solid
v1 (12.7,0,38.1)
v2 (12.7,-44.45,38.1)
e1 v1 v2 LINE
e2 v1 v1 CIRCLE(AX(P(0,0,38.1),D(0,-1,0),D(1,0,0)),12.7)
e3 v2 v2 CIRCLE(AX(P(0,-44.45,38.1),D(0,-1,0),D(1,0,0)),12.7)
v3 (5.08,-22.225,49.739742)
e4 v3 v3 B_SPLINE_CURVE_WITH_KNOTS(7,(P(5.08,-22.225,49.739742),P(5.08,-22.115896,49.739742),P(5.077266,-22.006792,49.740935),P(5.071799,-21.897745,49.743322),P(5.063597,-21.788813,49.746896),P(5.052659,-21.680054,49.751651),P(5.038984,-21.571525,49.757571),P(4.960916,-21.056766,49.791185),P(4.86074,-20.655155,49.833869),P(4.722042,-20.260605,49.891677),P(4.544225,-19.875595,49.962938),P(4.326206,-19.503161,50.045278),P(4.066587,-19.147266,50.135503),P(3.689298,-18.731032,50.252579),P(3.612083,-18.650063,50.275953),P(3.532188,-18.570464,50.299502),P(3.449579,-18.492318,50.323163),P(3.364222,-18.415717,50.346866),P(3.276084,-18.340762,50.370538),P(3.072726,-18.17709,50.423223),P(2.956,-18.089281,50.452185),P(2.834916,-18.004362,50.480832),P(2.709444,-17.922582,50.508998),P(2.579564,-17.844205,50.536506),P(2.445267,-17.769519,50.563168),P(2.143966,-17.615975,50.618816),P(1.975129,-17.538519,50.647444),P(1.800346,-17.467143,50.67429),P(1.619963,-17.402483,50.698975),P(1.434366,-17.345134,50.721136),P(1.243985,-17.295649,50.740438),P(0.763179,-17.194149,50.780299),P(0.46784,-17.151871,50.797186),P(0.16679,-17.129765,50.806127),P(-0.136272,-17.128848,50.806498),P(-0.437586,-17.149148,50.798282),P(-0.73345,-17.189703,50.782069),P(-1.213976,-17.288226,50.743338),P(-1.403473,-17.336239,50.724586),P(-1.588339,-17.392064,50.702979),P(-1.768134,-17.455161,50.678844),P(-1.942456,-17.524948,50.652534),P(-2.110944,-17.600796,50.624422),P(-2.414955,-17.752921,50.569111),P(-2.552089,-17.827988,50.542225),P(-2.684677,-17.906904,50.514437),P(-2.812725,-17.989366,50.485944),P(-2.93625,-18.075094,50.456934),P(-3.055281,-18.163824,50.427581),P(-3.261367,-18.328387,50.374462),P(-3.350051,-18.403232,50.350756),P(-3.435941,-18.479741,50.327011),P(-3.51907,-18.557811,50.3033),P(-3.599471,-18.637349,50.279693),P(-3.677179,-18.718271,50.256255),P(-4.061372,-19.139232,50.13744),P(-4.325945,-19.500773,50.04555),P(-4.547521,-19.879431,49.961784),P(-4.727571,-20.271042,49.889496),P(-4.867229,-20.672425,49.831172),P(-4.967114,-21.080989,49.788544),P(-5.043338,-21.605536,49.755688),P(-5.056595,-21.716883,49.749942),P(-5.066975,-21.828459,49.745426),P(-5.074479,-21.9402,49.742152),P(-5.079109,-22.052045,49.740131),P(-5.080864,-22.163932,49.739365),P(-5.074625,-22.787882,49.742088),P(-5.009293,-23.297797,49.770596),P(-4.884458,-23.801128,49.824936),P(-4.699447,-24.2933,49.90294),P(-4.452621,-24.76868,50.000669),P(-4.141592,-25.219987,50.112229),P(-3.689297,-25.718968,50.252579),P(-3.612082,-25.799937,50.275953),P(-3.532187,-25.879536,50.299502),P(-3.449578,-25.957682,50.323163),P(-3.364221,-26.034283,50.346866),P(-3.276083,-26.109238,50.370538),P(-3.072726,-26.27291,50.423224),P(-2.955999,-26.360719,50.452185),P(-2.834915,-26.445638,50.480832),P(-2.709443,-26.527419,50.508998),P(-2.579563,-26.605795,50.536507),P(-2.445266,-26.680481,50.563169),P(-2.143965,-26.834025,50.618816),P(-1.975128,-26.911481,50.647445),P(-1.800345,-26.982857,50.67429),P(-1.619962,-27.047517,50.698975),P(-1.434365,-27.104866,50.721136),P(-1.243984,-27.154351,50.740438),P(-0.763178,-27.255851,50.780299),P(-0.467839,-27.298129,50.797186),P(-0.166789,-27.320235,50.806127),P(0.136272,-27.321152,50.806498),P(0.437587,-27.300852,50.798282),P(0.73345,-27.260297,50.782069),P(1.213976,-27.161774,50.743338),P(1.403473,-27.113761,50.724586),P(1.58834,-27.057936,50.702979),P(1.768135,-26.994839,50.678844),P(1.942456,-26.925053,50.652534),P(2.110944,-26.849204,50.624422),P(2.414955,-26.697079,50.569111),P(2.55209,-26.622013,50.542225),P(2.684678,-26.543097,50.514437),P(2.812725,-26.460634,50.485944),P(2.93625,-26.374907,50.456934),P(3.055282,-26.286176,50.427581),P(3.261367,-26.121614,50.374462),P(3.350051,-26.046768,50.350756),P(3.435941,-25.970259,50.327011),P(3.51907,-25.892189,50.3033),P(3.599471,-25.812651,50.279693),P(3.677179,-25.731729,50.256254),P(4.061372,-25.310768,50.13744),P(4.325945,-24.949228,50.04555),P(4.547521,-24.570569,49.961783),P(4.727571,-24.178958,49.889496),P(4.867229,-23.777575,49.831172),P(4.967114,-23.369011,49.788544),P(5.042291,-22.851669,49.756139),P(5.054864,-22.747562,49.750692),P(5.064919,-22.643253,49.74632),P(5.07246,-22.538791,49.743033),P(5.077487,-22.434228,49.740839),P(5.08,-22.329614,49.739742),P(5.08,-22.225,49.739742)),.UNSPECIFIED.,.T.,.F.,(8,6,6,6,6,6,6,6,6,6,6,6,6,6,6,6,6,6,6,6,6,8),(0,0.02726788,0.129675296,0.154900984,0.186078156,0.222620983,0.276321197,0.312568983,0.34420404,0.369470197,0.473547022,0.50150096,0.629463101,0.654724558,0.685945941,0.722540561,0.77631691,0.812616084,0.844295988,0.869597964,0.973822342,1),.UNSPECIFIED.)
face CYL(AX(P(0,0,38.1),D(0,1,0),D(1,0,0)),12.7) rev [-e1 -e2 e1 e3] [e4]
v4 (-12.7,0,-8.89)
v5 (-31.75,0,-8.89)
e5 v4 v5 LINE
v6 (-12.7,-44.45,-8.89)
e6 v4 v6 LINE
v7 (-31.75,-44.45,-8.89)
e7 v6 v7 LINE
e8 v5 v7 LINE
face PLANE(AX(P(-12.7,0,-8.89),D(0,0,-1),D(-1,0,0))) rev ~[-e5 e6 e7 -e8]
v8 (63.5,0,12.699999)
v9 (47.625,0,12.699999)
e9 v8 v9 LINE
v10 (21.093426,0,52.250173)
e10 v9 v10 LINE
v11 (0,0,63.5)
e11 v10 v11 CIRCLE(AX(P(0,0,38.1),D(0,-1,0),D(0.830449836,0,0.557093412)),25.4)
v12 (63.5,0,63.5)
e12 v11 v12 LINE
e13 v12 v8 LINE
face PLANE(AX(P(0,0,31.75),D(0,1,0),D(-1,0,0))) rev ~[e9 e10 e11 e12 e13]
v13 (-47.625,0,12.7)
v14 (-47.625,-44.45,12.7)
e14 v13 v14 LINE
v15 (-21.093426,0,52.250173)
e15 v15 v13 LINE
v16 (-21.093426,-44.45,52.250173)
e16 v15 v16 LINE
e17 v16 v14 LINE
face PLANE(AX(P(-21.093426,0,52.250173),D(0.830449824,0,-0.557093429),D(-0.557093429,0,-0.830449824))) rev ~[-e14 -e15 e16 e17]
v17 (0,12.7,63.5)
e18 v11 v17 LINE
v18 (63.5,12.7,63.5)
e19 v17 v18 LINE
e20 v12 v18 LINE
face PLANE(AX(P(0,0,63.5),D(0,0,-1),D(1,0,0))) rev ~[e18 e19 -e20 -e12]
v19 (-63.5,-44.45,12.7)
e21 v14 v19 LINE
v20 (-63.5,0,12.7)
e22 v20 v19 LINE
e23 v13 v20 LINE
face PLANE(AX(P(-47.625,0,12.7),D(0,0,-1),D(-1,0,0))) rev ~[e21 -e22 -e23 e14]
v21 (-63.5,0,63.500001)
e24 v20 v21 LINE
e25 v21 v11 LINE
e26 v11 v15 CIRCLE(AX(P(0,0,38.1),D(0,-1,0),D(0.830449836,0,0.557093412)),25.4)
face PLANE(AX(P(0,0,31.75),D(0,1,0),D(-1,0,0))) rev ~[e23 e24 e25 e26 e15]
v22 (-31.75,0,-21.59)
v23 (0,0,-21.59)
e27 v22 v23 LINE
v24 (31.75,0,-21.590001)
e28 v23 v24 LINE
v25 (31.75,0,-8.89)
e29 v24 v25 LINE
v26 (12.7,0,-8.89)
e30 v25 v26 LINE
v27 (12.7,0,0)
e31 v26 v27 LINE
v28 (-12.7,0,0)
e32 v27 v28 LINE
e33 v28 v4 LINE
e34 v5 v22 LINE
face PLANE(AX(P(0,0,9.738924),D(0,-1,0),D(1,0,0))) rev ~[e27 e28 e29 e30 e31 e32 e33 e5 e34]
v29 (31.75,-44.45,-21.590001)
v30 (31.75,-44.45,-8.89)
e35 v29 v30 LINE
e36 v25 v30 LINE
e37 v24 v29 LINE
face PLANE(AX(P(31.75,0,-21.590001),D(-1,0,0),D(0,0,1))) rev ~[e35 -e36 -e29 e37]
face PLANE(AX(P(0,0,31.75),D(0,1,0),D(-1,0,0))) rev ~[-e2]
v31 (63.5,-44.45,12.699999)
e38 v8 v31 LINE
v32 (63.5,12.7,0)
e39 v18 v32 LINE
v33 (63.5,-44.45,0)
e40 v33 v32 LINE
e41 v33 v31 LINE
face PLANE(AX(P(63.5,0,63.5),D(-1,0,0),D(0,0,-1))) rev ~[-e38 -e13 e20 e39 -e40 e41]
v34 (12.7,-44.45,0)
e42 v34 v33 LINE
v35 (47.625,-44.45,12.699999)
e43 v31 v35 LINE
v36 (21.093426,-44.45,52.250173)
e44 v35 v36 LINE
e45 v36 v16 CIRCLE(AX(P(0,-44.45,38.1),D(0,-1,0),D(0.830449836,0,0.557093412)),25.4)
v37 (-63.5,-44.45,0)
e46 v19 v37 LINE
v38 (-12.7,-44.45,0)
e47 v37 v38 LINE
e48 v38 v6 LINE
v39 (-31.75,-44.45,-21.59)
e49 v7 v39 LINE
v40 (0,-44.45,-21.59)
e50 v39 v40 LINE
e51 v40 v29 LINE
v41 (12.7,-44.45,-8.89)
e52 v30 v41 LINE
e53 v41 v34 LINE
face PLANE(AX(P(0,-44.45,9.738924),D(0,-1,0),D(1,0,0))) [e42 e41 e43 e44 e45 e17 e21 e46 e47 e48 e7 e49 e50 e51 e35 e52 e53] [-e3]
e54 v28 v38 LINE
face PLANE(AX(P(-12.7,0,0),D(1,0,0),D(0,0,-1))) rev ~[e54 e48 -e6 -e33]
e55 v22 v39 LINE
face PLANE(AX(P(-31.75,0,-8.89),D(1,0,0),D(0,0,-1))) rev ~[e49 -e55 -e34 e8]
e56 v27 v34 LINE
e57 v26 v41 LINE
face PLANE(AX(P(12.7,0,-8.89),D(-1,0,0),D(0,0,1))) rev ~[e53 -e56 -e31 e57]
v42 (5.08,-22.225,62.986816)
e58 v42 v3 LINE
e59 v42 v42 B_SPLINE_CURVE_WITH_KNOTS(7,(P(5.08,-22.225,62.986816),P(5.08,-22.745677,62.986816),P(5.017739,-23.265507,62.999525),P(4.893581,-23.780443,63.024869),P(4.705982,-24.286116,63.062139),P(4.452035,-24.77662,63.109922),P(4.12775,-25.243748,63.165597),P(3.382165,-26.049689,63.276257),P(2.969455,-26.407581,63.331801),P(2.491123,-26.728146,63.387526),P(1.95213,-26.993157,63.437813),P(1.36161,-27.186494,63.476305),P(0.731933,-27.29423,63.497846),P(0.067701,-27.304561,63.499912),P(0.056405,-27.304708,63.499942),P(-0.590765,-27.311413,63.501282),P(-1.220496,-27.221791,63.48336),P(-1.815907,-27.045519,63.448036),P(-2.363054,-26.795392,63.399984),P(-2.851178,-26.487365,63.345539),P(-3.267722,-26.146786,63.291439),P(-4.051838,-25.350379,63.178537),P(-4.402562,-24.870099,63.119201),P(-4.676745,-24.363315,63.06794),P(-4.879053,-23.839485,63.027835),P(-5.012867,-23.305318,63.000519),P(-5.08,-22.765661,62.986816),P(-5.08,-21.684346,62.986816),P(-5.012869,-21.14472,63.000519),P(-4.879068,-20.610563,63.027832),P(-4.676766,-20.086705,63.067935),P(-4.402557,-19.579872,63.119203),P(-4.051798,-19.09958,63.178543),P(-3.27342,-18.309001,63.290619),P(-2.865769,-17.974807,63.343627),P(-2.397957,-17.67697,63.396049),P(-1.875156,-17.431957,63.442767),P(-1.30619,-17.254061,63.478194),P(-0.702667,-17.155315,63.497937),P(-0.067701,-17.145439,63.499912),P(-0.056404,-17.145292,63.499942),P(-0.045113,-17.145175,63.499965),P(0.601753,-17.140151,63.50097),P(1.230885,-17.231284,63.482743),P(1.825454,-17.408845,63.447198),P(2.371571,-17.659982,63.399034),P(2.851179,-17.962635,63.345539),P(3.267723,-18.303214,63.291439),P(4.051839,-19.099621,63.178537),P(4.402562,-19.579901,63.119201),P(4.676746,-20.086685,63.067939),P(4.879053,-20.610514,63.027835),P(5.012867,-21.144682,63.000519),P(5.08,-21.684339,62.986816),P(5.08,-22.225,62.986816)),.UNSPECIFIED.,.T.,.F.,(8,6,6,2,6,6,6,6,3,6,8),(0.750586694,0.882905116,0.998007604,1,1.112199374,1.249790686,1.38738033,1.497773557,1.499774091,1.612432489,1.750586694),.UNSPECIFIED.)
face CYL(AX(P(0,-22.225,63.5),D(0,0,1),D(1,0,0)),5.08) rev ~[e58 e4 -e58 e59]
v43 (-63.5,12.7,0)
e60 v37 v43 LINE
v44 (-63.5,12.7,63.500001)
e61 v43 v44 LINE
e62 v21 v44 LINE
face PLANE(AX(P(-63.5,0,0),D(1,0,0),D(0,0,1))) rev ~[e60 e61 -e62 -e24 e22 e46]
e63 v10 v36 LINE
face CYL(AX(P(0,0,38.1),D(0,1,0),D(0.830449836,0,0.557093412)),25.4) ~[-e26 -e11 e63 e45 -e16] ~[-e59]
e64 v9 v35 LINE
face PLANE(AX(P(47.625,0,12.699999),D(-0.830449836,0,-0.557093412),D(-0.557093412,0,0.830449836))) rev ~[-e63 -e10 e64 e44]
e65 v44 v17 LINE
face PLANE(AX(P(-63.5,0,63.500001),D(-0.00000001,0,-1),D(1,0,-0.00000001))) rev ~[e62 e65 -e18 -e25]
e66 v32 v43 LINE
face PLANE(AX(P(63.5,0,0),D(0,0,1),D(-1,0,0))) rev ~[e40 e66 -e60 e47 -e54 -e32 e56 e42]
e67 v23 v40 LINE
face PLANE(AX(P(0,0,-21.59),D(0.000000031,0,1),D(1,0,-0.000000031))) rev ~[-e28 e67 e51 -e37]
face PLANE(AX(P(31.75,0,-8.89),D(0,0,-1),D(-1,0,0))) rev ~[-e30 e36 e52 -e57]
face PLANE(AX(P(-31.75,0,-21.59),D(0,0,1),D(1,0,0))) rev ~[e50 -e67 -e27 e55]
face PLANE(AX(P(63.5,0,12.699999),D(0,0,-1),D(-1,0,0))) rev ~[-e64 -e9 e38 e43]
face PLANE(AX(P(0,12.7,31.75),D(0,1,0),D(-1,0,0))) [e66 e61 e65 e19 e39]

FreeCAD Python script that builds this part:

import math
import FreeCAD as App
import Part
import Sketcher
Q = App.Units.Quantity


def add_polygon(sketch, points):
    """Adds a closed chain of lines whose ends are joined by coincident constraints."""
    first, n = sketch.GeometryCount, len(points)
    for a, b in zip(points, points[1:] + points[:1]):
        sketch.addGeometry(Part.LineSegment(App.Vector(*a, 0), App.Vector(*b, 0)), False)
    for i in range(n):
        sketch.addConstraint(Sketcher.Constraint("Coincident", first + i, 2, first + (i + 1) % n, 1))

doc = App.newDocument("Part")
params = doc.addObject("Spreadsheet::Sheet", "Params")
for row, (alias, value) in enumerate([
    ("sketch1_diameter", "1 in"),
    ("sketch1_radius", "1 in"),
    ("sketch1_width", "2 in"),
    ("sketch1_height", "0.5 in"),
    ("sketch1_width2", "1.25 in"),
    ("pad1_length", "1.75 in"),
    ("sketch2_width", "5 in"),
    ("pad2_length", "0.5 in"),
    ("sketch3_diameter", "0.4 in"),
    ("pocket1_length", "14.760258 mm"),
], start=1):
    params.set(f"A{row}", alias)
    params.set(f"B{row}", "=" + value)
    params.setAlias(f"B{row}", alias)

body = doc.addObject("PartDesign::Body", "Body")

# Sketch on XZ plane
sketch1 = body.newObject("Sketcher::SketchObject", "Sketch")
sketch1.AttachmentSupport = (doc.getObject("XZ_Plane"), [""])
sketch1.MapMode = "FlatFace"
sketch1.addGeometry(Part.LineSegment(App.Vector(-32, -22, 0), App.Vector(0, -22, 0)), False)
sketch1.addGeometry(Part.LineSegment(App.Vector(0, -22, 0), App.Vector(32, -22, 0)), False)
sketch1.addGeometry(Part.LineSegment(App.Vector(32, -22, 0), App.Vector(32, -9, 0)), False)
sketch1.addGeometry(Part.LineSegment(App.Vector(32, -9, 0), App.Vector(13, -9, 0)), False)
sketch1.addGeometry(Part.LineSegment(App.Vector(13, -9, 0), App.Vector(13, 0, 0)), False)
sketch1.addGeometry(Part.LineSegment(App.Vector(13, 0, 0), App.Vector(63, 0, 0)), False)
sketch1.addGeometry(Part.LineSegment(App.Vector(63, 0, 0), App.Vector(63, 13, 0)), False)
sketch1.addGeometry(Part.LineSegment(App.Vector(63, 13, 0), App.Vector(48, 13, 0)), False)
sketch1.addGeometry(Part.LineSegment(App.Vector(48, 13, 0), App.Vector(21, 52, 0)), False)
sketch1.addGeometry(Part.ArcOfCircle(Part.Circle(App.Vector(0, 38, 0), App.Vector(0, 0, 1), 25), math.radians(34), math.radians(146)), False)
sketch1.addGeometry(Part.LineSegment(App.Vector(-21, 52, 0), App.Vector(-48, 13, 0)), False)
sketch1.addGeometry(Part.LineSegment(App.Vector(-48, 13, 0), App.Vector(-64, 13, 0)), False)
sketch1.addGeometry(Part.LineSegment(App.Vector(-64, 13, 0), App.Vector(-64, 0, 0)), False)
sketch1.addGeometry(Part.LineSegment(App.Vector(-64, 0, 0), App.Vector(-13, 0, 0)), False)
sketch1.addGeometry(Part.LineSegment(App.Vector(-13, 0, 0), App.Vector(-13, -9, 0)), False)
sketch1.addGeometry(Part.LineSegment(App.Vector(-13, -9, 0), App.Vector(-32, -9, 0)), False)
sketch1.addGeometry(Part.LineSegment(App.Vector(-32, -9, 0), App.Vector(-32, -22, 0)), False)
sketch1.addGeometry(Part.Circle(App.Vector(0, 38, 0), App.Vector(0, 0, 1), 13), False)
sketch1.addConstraint(Sketcher.Constraint("Coincident", 0, 2, 1, 1))
sketch1.addConstraint(Sketcher.Constraint("Coincident", 1, 2, 2, 1))
sketch1.addConstraint(Sketcher.Constraint("Coincident", 2, 2, 3, 1))
sketch1.addConstraint(Sketcher.Constraint("Coincident", 3, 2, 4, 1))
sketch1.addConstraint(Sketcher.Constraint("Coincident", 4, 2, 5, 1))
sketch1.addConstraint(Sketcher.Constraint("Coincident", 5, 2, 6, 1))
sketch1.addConstraint(Sketcher.Constraint("Coincident", 6, 2, 7, 1))
sketch1.addConstraint(Sketcher.Constraint("Coincident", 7, 2, 8, 1))
sketch1.addConstraint(Sketcher.Constraint("Tangent", 8, 2, 9, 1))
sketch1.addConstraint(Sketcher.Constraint("Tangent", 9, 2, 10, 1))
sketch1.addConstraint(Sketcher.Constraint("Coincident", 10, 2, 11, 1))
sketch1.addConstraint(Sketcher.Constraint("Coincident", 11, 2, 12, 1))
sketch1.addConstraint(Sketcher.Constraint("Coincident", 12, 2, 13, 1))
sketch1.addConstraint(Sketcher.Constraint("Coincident", 13, 2, 14, 1))
sketch1.addConstraint(Sketcher.Constraint("Coincident", 14, 2, 15, 1))
sketch1.addConstraint(Sketcher.Constraint("Coincident", 15, 2, 16, 1))
sketch1.addConstraint(Sketcher.Constraint("Coincident", 16, 2, 0, 1))
sketch1.addConstraint(Sketcher.Constraint("Horizontal", 0))
sketch1.addConstraint(Sketcher.Constraint("Horizontal", 1))
sketch1.addConstraint(Sketcher.Constraint("Vertical", 2))
sketch1.addConstraint(Sketcher.Constraint("Horizontal", 3))
sketch1.addConstraint(Sketcher.Constraint("Vertical", 4))
sketch1.addConstraint(Sketcher.Constraint("Horizontal", 5))
sketch1.addConstraint(Sketcher.Constraint("Vertical", 6))
sketch1.addConstraint(Sketcher.Constraint("Horizontal", 7))
sketch1.addConstraint(Sketcher.Constraint("Horizontal", 11))
sketch1.addConstraint(Sketcher.Constraint("Vertical", 12))
sketch1.addConstraint(Sketcher.Constraint("Horizontal", 13))
sketch1.addConstraint(Sketcher.Constraint("Vertical", 14))
sketch1.addConstraint(Sketcher.Constraint("Horizontal", 15))
sketch1.addConstraint(Sketcher.Constraint("Vertical", 16))
sketch1.addConstraint(Sketcher.Constraint("Coincident", 17, 3, 9, 3))
sketch1.addConstraint(Sketcher.Constraint("Symmetric", 5, 2, 12, 2, -1, 1))
sketch1.addConstraint(Sketcher.Constraint("Symmetric", 8, 2, 9, 2, -2))
sketch1.addConstraint(Sketcher.Constraint("Symmetric", 4, 2, 13, 2, -2))
sketch1.addConstraint(Sketcher.Constraint("Symmetric", 2, 2, 15, 2, -2))
sketch1.addConstraint(Sketcher.Constraint("PointOnObject", 0, 2, -2))
sketch1.addConstraint(Sketcher.Constraint("Horizontal", 7, 2, 10, 2))
sketch1.addConstraint(Sketcher.Constraint("Equal", 2, 6))
sketch1.addConstraint(Sketcher.Constraint("Diameter", 17, Q("1 in")))
sketch1.addConstraint(Sketcher.Constraint("Radius", 9, Q("1 in")))
sketch1.addConstraint(Sketcher.Constraint("DistanceX", 5, 1, 5, 2, Q("2 in")))
sketch1.addConstraint(Sketcher.Constraint("DistanceY", 2, 1, 2, 2, Q("0.5 in")))
sketch1.addConstraint(Sketcher.Constraint("DistanceY", 10, 2, 9, 3, Q("1 in")))
sketch1.addConstraint(Sketcher.Constraint("DistanceX", 13, 2, 4, 2, Q("1 in")))
sketch1.addConstraint(Sketcher.Constraint("DistanceX", 0, 1, 0, 2, Q("1.25 in")))
sketch1.addConstraint(Sketcher.Constraint("DistanceY", 4, 1, 4, 2, Q("0.35 in")))
sketch1.addConstraint(Sketcher.Constraint("DistanceX", 7, 2, 7, 1, Q("0.625 in")))
sketch1.setExpression("Constraints[39]", "Params.sketch1_diameter")
sketch1.setExpression("Constraints[40]", "Params.sketch1_radius")
sketch1.setExpression("Constraints[41]", "Params.sketch1_width")
sketch1.setExpression("Constraints[42]", "Params.sketch1_height")
sketch1.setExpression("Constraints[45]", "Params.sketch1_width2")
pad1 = body.newObject("PartDesign::Pad", "Pad")
pad1.Profile = sketch1
pad1.setExpression("Length", "Params.pad1_length")

# Sketch on XZ plane
sketch2 = body.newObject("Sketcher::SketchObject", "Sketch001")
sketch2.AttachmentSupport = (doc.getObject("XZ_Plane"), [""])
sketch2.MapMode = "FlatFace"
add_polygon(sketch2, [(63, 64), (63, 0), (-64, 0), (-64, 64), (0, 64)])  # lines 0-4
sketch2.addConstraint(Sketcher.Constraint("Vertical", 0))
sketch2.addConstraint(Sketcher.Constraint("Horizontal", 1))
sketch2.addConstraint(Sketcher.Constraint("Vertical", 2))
sketch2.addConstraint(Sketcher.Constraint("Horizontal", 3))
sketch2.addConstraint(Sketcher.Constraint("Horizontal", 4))
sketch2.addConstraint(Sketcher.Constraint("Symmetric", 0, 2, 1, 2, -1, 1))
sketch2.addConstraint(Sketcher.Constraint("PointOnObject", 3, 2, -2))
sketch2.addConstraint(Sketcher.Constraint("Equal", 4, 0))
sketch2.addConstraint(Sketcher.Constraint("DistanceX", 1, 2, 1, 1, Q("5 in")))
sketch2.setExpression("Constraints[13]", "Params.sketch2_width")
pad2 = body.newObject("PartDesign::Pad", "Pad001")
pad2.Profile = sketch2
pad2.setExpression("Length", "Params.pad2_length")
pad2.Reversed = True

# Sketch on XY plane
sketch3 = body.newObject("Sketcher::SketchObject", "Sketch002")
sketch3.AttachmentSupport = (doc.getObject("XY_Plane"), [""])
sketch3.MapMode = "FlatFace"
sketch3.AttachmentOffset = App.Placement(App.Vector(0, 0, 2.5 * 25.4), App.Rotation())
sketch3.addGeometry(Part.Circle(App.Vector(0, -22, 0), App.Vector(0, 0, 1), 5), False)
sketch3.addConstraint(Sketcher.Constraint("PointOnObject", 0, 3, -2))
sketch3.addConstraint(Sketcher.Constraint("Diameter", 0, Q("0.4 in")))
sketch3.addConstraint(Sketcher.Constraint("DistanceY", 0, 3, -1, 1, Q("0.875 in")))
sketch3.setExpression("Constraints[1]", "Params.sketch3_diameter")
pocket1 = body.newObject("PartDesign::Pocket", "Pocket")
pocket1.Profile = sketch3
pocket1.setExpression("Length", "Params.pocket1_length")

doc.recompute()
